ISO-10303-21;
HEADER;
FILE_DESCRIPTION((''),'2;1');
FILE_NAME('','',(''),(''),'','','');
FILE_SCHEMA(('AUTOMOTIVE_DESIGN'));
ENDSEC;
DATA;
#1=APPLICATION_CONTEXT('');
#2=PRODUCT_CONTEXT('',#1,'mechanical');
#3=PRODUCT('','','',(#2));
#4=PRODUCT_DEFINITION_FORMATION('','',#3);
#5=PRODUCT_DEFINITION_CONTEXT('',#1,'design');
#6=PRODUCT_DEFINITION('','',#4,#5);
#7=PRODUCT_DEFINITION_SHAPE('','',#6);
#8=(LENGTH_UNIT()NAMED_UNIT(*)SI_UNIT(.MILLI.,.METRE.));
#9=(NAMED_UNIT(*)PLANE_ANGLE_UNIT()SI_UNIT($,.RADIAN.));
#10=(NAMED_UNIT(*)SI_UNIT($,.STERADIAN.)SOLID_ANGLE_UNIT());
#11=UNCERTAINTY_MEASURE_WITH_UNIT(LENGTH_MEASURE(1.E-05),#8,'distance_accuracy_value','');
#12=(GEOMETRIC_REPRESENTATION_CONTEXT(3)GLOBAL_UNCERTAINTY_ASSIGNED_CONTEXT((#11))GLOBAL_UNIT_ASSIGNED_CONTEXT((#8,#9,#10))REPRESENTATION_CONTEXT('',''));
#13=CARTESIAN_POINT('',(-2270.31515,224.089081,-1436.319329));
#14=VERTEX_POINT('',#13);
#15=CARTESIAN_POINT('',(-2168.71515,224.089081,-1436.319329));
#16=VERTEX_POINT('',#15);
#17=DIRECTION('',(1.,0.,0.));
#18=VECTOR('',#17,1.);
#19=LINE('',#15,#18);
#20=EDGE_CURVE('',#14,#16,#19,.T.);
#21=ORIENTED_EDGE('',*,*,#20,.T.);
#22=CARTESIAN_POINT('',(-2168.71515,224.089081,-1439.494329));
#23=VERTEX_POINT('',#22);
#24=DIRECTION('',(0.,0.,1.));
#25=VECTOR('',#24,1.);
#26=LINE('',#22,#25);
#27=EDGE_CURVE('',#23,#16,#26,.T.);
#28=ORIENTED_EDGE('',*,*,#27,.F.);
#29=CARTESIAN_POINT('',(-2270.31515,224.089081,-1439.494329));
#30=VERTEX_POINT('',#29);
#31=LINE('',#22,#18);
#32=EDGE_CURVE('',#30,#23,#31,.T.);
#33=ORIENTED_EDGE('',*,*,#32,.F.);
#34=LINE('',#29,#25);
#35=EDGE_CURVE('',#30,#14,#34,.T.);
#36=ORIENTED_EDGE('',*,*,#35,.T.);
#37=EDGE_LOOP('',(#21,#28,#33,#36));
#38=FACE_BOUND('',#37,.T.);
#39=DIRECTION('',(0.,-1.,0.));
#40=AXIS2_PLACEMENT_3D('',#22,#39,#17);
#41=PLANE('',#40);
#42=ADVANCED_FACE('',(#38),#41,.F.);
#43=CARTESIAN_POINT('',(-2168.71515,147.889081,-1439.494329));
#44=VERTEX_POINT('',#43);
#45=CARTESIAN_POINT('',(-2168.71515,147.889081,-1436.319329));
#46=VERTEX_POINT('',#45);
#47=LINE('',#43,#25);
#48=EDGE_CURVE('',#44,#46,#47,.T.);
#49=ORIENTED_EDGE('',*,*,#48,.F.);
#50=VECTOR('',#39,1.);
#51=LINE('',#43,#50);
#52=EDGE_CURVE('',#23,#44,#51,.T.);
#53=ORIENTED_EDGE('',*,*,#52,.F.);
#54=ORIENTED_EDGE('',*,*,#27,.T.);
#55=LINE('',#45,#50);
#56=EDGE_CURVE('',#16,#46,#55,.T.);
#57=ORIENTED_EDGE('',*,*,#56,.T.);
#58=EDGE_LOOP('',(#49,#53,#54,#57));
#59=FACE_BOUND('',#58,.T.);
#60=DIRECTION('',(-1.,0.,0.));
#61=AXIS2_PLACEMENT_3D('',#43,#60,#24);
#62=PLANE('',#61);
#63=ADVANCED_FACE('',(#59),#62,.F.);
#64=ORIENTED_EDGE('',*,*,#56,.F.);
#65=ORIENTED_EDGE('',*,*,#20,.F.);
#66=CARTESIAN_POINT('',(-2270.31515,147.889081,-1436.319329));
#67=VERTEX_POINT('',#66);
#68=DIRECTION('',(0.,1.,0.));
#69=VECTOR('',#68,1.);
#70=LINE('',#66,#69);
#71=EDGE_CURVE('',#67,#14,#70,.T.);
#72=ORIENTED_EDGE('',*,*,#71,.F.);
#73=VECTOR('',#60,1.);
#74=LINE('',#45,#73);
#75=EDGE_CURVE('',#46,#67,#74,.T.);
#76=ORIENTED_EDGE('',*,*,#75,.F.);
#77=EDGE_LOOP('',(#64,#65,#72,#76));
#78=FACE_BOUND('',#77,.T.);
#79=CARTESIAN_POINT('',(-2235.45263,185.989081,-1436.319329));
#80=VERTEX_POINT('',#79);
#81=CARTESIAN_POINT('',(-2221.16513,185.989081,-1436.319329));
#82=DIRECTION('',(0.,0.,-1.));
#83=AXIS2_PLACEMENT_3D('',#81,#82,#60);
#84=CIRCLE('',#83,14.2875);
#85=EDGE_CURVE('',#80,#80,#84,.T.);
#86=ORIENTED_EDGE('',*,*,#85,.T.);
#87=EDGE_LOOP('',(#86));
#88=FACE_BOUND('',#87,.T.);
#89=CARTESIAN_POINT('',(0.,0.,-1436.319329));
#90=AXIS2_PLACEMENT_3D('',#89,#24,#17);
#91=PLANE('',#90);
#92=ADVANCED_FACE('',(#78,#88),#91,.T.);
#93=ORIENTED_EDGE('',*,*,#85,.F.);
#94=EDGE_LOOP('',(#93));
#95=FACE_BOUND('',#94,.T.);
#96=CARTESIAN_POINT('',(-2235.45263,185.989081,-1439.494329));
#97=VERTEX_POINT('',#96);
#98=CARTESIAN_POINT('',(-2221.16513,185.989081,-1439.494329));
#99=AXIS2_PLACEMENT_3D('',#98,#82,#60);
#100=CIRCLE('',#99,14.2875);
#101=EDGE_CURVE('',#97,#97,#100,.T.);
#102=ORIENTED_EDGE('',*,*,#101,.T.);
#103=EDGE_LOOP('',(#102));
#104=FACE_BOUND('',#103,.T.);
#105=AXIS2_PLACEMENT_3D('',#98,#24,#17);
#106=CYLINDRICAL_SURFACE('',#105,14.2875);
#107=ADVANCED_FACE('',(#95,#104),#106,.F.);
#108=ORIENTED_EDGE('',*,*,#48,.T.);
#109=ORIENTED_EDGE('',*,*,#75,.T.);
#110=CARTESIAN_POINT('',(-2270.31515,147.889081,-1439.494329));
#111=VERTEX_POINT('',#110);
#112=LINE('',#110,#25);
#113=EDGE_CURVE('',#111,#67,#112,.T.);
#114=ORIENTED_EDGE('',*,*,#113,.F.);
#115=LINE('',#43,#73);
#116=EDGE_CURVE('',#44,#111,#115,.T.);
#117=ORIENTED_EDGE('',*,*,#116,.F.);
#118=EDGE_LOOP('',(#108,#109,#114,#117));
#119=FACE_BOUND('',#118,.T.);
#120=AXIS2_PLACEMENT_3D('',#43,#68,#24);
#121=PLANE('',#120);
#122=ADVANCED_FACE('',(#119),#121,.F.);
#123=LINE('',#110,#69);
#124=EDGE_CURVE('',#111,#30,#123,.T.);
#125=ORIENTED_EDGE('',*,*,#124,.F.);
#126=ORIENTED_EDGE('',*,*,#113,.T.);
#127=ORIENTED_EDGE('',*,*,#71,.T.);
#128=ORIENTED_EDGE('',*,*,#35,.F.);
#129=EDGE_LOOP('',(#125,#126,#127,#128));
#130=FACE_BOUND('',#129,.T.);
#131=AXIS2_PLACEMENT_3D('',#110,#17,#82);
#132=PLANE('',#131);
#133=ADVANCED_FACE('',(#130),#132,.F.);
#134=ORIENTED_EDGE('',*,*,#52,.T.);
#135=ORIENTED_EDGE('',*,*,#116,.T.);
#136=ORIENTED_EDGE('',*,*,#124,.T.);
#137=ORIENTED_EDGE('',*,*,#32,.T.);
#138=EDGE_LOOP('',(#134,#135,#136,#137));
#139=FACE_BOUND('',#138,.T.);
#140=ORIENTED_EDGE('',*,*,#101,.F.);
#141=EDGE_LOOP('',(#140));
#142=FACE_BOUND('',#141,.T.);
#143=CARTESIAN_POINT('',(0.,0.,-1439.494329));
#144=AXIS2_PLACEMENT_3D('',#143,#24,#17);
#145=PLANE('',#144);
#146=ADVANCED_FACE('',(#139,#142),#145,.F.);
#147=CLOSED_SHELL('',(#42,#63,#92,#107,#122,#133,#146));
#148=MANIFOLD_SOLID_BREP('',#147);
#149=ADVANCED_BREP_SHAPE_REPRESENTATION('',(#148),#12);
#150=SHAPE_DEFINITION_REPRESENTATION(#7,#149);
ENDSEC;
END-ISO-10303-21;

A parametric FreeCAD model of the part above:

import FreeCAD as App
import Part
import Sketcher
Q = App.Units.Quantity

doc = App.newDocument("Part")
params = doc.addObject("Spreadsheet::Sheet", "Params")
for row, (alias, value) in enumerate([
    ("sketch1_width", "4 in"),
    ("sketch1_height", "3 in"),
    ("sketch1_diameter", "1.125 in"),
    ("pad1_length", "0.125 in"),
], start=1):
    params.set(f"A{row}", alias)
    params.set(f"B{row}", "=" + value)
    params.setAlias(f"B{row}", alias)

body = doc.addObject("PartDesign::Body", "Body")

# Sketch on XY plane
sketch1 = body.newObject("Sketcher::SketchObject", "Sketch")
sketch1.AttachmentSupport = (doc.getObject("XY_Plane"), [""])
sketch1.MapMode = "FlatFace"
sketch1.AttachmentOffset = App.Placement(App.Vector(0, 0, -1436.319329), App.Rotation())
sketch1.addGeometry([
    Part.LineSegment(App.Vector(-2169, 224, 0), App.Vector(-2169, 148, 0)),  # 0
    Part.LineSegment(App.Vector(-2169, 148, 0), App.Vector(-2270, 148, 0)),  # 1
    Part.LineSegment(App.Vector(-2270, 148, 0), App.Vector(-2270, 224, 0)),  # 2
    Part.LineSegment(App.Vector(-2270, 224, 0), App.Vector(-2169, 224, 0)),  # 3
    Part.Circle(App.Vector(-2221, 186, 0), App.Vector(0, 0, 1), 14),  # 4
], False)
sketch1.addConstraint([
    Sketcher.Constraint("Coincident", 0, 2, 1, 1),
    Sketcher.Constraint("Coincident", 1, 2, 2, 1),
    Sketcher.Constraint("Coincident", 2, 2, 3, 1),
    Sketcher.Constraint("Coincident", 3, 2, 0, 1),
    Sketcher.Constraint("Vertical", 0),
    Sketcher.Constraint("Horizontal", 1),
    Sketcher.Constraint("Vertical", 2),
    Sketcher.Constraint("Horizontal", 3),
    Sketcher.Constraint("DistanceX", 1, 2, 1, 1, Q("4 in")),
    Sketcher.Constraint("DistanceY", 0, 2, 0, 1, Q("3 in")),
    Sketcher.Constraint("Diameter", 4, Q("1.125 in")),
    Sketcher.Constraint("DistanceY", 0, 2, 4, 3, Q("1.5 in")),
    Sketcher.Constraint("DistanceX", 4, 3, -1, 1, 2221.16513),
    Sketcher.Constraint("DistanceY", -1, 1, 4, 3, 185.989081),
    Sketcher.Constraint("DistanceX", 0, 2, -1, 1, 2168.71515),
])
sketch1.setExpression("Constraints[8]", "Params.sketch1_width")
sketch1.setExpression("Constraints[9]", "Params.sketch1_height")
sketch1.setExpression("Constraints[10]", "Params.sketch1_diameter")
pad1 = body.newObject("PartDesign::Pad", "Pad")
pad1.Profile = sketch1
pad1.setExpression("Length", "Params.pad1_length")
pad1.Reversed = True

doc.recompute()
